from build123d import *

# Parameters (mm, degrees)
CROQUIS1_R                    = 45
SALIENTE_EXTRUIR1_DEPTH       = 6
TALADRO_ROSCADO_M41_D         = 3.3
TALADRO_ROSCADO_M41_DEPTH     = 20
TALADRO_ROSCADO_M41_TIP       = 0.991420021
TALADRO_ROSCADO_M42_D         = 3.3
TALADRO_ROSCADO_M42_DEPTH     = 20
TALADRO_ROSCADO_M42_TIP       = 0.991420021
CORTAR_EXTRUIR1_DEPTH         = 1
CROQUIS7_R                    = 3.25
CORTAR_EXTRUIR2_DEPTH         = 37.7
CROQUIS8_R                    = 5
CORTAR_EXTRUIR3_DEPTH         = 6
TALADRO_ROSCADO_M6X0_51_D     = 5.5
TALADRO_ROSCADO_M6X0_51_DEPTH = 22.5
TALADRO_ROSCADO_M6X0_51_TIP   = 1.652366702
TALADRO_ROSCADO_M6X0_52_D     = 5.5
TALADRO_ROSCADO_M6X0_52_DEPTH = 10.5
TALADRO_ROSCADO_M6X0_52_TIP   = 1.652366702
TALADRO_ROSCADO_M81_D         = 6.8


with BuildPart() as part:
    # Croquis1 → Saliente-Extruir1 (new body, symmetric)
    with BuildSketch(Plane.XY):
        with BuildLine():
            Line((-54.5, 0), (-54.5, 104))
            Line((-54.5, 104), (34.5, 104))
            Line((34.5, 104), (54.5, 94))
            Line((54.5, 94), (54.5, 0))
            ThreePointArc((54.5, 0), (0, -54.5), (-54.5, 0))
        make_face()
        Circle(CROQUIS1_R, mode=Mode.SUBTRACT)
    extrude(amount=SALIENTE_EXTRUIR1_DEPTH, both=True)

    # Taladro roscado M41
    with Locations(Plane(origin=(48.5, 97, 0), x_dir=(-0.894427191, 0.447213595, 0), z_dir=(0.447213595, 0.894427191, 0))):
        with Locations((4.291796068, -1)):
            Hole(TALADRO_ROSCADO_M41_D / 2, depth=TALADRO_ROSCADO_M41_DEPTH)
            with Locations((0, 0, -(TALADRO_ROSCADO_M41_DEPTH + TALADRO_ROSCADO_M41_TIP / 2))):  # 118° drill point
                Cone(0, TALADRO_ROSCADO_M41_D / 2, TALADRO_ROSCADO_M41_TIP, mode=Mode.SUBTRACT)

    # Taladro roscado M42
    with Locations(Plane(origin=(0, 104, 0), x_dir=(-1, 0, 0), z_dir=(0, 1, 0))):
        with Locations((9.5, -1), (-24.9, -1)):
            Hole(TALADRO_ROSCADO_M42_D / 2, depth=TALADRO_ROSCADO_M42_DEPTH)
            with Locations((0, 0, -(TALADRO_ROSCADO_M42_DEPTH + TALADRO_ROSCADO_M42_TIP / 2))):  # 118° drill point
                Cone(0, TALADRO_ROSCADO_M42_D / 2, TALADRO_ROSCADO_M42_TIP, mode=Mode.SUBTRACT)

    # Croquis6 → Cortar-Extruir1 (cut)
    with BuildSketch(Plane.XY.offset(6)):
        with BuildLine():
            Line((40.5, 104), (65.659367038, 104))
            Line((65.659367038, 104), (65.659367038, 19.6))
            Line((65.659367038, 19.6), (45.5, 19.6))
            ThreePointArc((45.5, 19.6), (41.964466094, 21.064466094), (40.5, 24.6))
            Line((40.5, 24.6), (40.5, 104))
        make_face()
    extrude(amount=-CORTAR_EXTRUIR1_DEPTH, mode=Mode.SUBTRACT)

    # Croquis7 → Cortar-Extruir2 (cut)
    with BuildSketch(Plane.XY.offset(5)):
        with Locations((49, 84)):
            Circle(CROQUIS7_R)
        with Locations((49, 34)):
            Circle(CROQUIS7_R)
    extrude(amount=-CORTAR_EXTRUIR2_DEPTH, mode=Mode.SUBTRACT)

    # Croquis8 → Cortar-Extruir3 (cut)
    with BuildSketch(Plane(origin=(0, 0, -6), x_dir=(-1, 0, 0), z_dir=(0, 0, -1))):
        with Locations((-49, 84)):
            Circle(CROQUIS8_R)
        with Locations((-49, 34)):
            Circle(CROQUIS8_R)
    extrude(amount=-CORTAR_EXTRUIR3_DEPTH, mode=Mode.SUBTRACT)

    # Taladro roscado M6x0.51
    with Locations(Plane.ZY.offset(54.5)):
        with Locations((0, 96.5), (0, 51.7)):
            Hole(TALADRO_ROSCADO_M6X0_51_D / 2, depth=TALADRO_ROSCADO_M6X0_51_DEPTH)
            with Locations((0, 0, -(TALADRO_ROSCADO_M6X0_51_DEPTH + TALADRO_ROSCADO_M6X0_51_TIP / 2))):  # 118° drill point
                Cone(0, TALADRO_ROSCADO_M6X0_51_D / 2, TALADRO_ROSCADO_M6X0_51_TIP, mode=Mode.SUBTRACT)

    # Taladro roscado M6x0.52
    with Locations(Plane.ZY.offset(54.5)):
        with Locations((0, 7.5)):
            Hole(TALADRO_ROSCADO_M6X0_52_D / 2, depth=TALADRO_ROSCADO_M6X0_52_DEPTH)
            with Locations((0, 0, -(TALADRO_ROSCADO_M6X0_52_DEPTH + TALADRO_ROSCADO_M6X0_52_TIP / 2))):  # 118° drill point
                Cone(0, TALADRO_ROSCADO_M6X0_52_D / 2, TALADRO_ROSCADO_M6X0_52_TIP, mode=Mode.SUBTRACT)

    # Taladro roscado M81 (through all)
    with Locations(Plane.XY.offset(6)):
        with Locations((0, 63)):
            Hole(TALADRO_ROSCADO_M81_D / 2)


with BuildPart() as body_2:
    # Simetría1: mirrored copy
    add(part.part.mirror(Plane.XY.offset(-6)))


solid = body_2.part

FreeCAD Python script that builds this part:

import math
import FreeCAD as App
import Part
import Sketcher
Q = App.Units.Quantity

doc = App.newDocument("Part")
body = doc.addObject("PartDesign::Body", "Body")

sketch1 = body.newObject("Sketcher::SketchObject", "Sketch")
sketch1.AttachmentSupport = (doc.getObject("XY_Plane"), [""])
sketch1.MapMode = "FlatFace"
sketch1.addGeometry([
    Part.LineSegment(App.Vector(-54, 104, 0), App.Vector(-54, 0, 0)),
    Part.ArcOfCircle(Part.Circle(App.Vector(0, 0, 0), App.Vector(0, 0, 1), 54), math.radians(180), math.radians(360)),
    Part.LineSegment(App.Vector(54, 0, 0), App.Vector(54, 94, 0)),
    Part.LineSegment(App.Vector(54, 94, 0), App.Vector(34, 104, 0)),
    Part.LineSegment(App.Vector(34, 104, 0), App.Vector(-54, 104, 0)),
    Part.Circle(App.Vector(0, 0, 0), App.Vector(0, 0, 1), 45),
], False)
sketch1.addConstraint([
    Sketcher.Constraint("Tangent", 0, 2, 1, 1),
    Sketcher.Constraint("Tangent", 1, 2, 2, 1),
    Sketcher.Constraint("Coincident", 2, 2, 3, 1),
    Sketcher.Constraint("Coincident", 3, 2, 4, 1),
    Sketcher.Constraint("Coincident", 4, 2, 0, 1),
    Sketcher.Constraint("Vertical", 0),
    Sketcher.Constraint("Vertical", 2),
    Sketcher.Constraint("Horizontal", 4),
    Sketcher.Constraint("Coincident", 1, 3, -1, 1),
    Sketcher.Constraint("Coincident", 5, 3, -1, 1),
    Sketcher.Constraint("Diameter", 5, Q("90 mm")),
    Sketcher.Constraint("Radius", 1, Q("54.5 mm")),
    Sketcher.Constraint("DistanceX", 4, 2, 4, 1, Q("89 mm")),
    Sketcher.Constraint("DistanceY", 0, 2, 0, 1, Q("104 mm")),
    Sketcher.Constraint("DistanceY", 2, 1, 2, 2, Q("94 mm")),
])
pad1 = body.newObject("PartDesign::Pad", "Pad")
pad1.Profile = sketch1
pad1.Length = 12
pad1.Midplane = True

sketch2 = body.newObject("Sketcher::SketchObject", "Sketch001")
sketch2.Placement = App.Placement(App.Vector(48.5, 97, 0), App.Rotation(App.Vector(-0.894427191, 0.447213595, 0), App.Vector(0, 0, 1), App.Vector(0.447213595, 0.894427191, 0), "ZXY"))
sketch2.addGeometry(Part.Circle(App.Vector(4.3, -1, 0), App.Vector(0, 0, 1), 1.6), False)
sketch2.addConstraint([
    Sketcher.Constraint("Diameter", 0, Q("3.3 mm")),
    Sketcher.Constraint("DistanceY", 0, 3, -1, 1, Q("1 mm")),
    Sketcher.Constraint("DistanceX", -1, 1, 0, 3, Q("4.291796 mm")),
])
doc.recompute()
hole = body.newObject("PartDesign::Hole", "Hole")
hole.Profile = sketch2
hole.ThreadType = "None"
hole.Diameter = 3.3
hole.DepthType = "Dimension"
hole.Depth = 20
hole.DrillPoint = "Angled"
hole.DrillPointAngle = 118

sketch3 = body.newObject("Sketcher::SketchObject", "Sketch002")
sketch3.AttachmentSupport = (doc.getObject("XZ_Plane"), [""])
sketch3.MapMode = "FlatFace"
sketch3.AttachmentOffset = App.Placement(App.Vector(0, 0, -104), App.Rotation())
sketch3.addGeometry([
    Part.Circle(App.Vector(-9.5, -1, 0), App.Vector(0, 0, 1), 1.6),
    Part.Circle(App.Vector(24.9, -1, 0), App.Vector(0, 0, 1), 1.6),
], False)
sketch3.addConstraint([
    Sketcher.Constraint("Equal", 0, 1),
    Sketcher.Constraint("Horizontal", 0, 3, 1, 3),
    Sketcher.Constraint("Diameter", 0, Q("3.3 mm")),
    Sketcher.Constraint("DistanceY", 0, 3, -1, 1, Q("1 mm")),
    Sketcher.Constraint("DistanceX", 0, 3, -1, 1, Q("9.5 mm")),
    Sketcher.Constraint("DistanceX", -1, 1, 1, 3, Q("24.9 mm")),
])
doc.recompute()
hole2 = body.newObject("PartDesign::Hole", "Hole001")
hole2.Profile = sketch3
hole2.ThreadType = "None"
hole2.Diameter = 3.3
hole2.DepthType = "Dimension"
hole2.Depth = 20
hole2.DrillPoint = "Angled"
hole2.DrillPointAngle = 118
hole2.Reversed = True

sketch4 = body.newObject("Sketcher::SketchObject", "Sketch003")
sketch4.AttachmentSupport = (doc.getObject("XY_Plane"), [""])
sketch4.MapMode = "FlatFace"
sketch4.AttachmentOffset = App.Placement(App.Vector(0, 0, 6), App.Rotation())
sketch4.addGeometry([
    Part.LineSegment(App.Vector(66, 104, 0), App.Vector(40, 104, 0)),
    Part.LineSegment(App.Vector(40, 104, 0), App.Vector(40, 25, 0)),
    Part.ArcOfCircle(Part.Circle(App.Vector(46, 25, 0), App.Vector(0, 0, 1), 5), math.radians(180), math.radians(270)),
    Part.LineSegment(App.Vector(46, 20, 0), App.Vector(66, 20, 0)),
    Part.LineSegment(App.Vector(66, 20, 0), App.Vector(66, 104, 0)),
], False)
sketch4.addConstraint([
    Sketcher.Constraint("Coincident", 0, 2, 1, 1),
    Sketcher.Constraint("Tangent", 1, 2, 2, 1),
    Sketcher.Constraint("Tangent", 2, 2, 3, 1),
    Sketcher.Constraint("Coincident", 3, 2, 4, 1),
    Sketcher.Constraint("Coincident", 4, 2, 0, 1),
    Sketcher.Constraint("Horizontal", 0),
    Sketcher.Constraint("Vertical", 1),
    Sketcher.Constraint("Horizontal", 3),
    Sketcher.Constraint("Vertical", 4),
    Sketcher.Constraint("Radius", 2, Q("5 mm")),
    Sketcher.Constraint("DistanceY", 1, 2, 1, 1, Q("79.4 mm")),
    Sketcher.Constraint("DistanceY", -1, 1, 0, 2, Q("104 mm")),
    Sketcher.Constraint("DistanceX", -1, 1, 2, 3, Q("45.5 mm")),
    Sketcher.Constraint("DistanceX", 0, 2, 0, 1, Q("25.159367 mm")),
])
pocket1 = body.newObject("PartDesign::Pocket", "Pocket")
pocket1.Profile = sketch4
pocket1.Length = 1

sketch5 = body.newObject("Sketcher::SketchObject", "Sketch004")
sketch5.AttachmentSupport = (doc.getObject("XY_Plane"), [""])
sketch5.MapMode = "FlatFace"
sketch5.AttachmentOffset = App.Placement(App.Vector(0, 0, 5), App.Rotation())
sketch5.addGeometry([
    Part.Circle(App.Vector(49, 84, 0), App.Vector(0, 0, 1), 3.2),
    Part.Circle(App.Vector(49, 34, 0), App.Vector(0, 0, 1), 3.2),
], False)
sketch5.addConstraint([
    Sketcher.Constraint("Equal", 0, 1),
    Sketcher.Constraint("Vertical", 0, 3, 1, 3),
    Sketcher.Constraint("Diameter", 0, Q("6.5 mm")),
    Sketcher.Constraint("DistanceX", -1, 1, 0, 3, Q("49 mm")),
    Sketcher.Constraint("DistanceY", -1, 1, 0, 3, Q("84 mm")),
    Sketcher.Constraint("DistanceY", -1, 1, 1, 3, Q("34 mm")),
])
pocket2 = body.newObject("PartDesign::Pocket", "Pocket001")
pocket2.Profile = sketch5
pocket2.Length = 37.7

sketch6 = body.newObject("Sketcher::SketchObject", "Sketch005")
sketch6.AttachmentSupport = (doc.getObject("XY_Plane"), [""])
sketch6.MapMode = "FlatFace"
sketch6.AttachmentOffset = App.Placement(App.Vector(0, 0, -6), App.Rotation())
sketch6.addGeometry([
    Part.Circle(App.Vector(49, 84, 0), App.Vector(0, 0, 1), 5),
    Part.Circle(App.Vector(49, 34, 0), App.Vector(0, 0, 1), 5),
], False)
sketch6.addConstraint([
    Sketcher.Constraint("Equal", 0, 1),
    Sketcher.Constraint("Vertical", 0, 3, 1, 3),
    Sketcher.Constraint("Diameter", 0, Q("10 mm")),
    Sketcher.Constraint("DistanceX", -1, 1, 0, 3, Q("49 mm")),
    Sketcher.Constraint("DistanceY", -1, 1, 0, 3, Q("84 mm")),
    Sketcher.Constraint("DistanceY", -1, 1, 1, 3, Q("34 mm")),
])
pocket3 = body.newObject("PartDesign::Pocket", "Pocket002")
pocket3.Profile = sketch6
pocket3.Length = 6
pocket3.Reversed = True

sketch7 = body.newObject("Sketcher::SketchObject", "Sketch006")
sketch7.AttachmentSupport = (doc.getObject("YZ_Plane"), [""])
sketch7.MapMode = "FlatFace"
sketch7.AttachmentOffset = App.Placement(App.Vector(0, 0, -54.5), App.Rotation())
sketch7.addGeometry([
    Part.Circle(App.Vector(96.5, 0, 0), App.Vector(0, 0, 1), 2.8),
    Part.Circle(App.Vector(51.7, 0, 0), App.Vector(0, 0, 1), 2.8),
], False)
sketch7.addConstraint([
    Sketcher.Constraint("Equal", 0, 1),
    Sketcher.Constraint("PointOnObject", 0, 3, -1),
    Sketcher.Constraint("PointOnObject", 1, 3, -1),
    Sketcher.Constraint("Diameter", 0, Q("5.5 mm")),
    Sketcher.Constraint("DistanceX", -1, 1, 0, 3, Q("96.5 mm")),
    Sketcher.Constraint("DistanceX", -1, 1, 1, 3, Q("51.7 mm")),
])
doc.recompute()
hole3 = body.newObject("PartDesign::Hole", "Hole002")
hole3.Profile = sketch7
hole3.ThreadType = "None"
hole3.Diameter = 5.5
hole3.DepthType = "Dimension"
hole3.Depth = 22.5
hole3.DrillPoint = "Angled"
hole3.DrillPointAngle = 118
hole3.Reversed = True

sketch8 = body.newObject("Sketcher::SketchObject", "Sketch007")
sketch8.AttachmentSupport = (doc.getObject("YZ_Plane"), [""])
sketch8.MapMode = "FlatFace"
sketch8.AttachmentOffset = App.Placement(App.Vector(0, 0, -54.5), App.Rotation())
sketch8.addGeometry(Part.Circle(App.Vector(7.5, 0, 0), App.Vector(0, 0, 1), 2.8), False)
sketch8.addConstraint([
    Sketcher.Constraint("PointOnObject", 0, 3, -1),
    Sketcher.Constraint("Diameter", 0, Q("5.5 mm")),
    Sketcher.Constraint("DistanceX", -1, 1, 0, 3, Q("7.5 mm")),
])
doc.recompute()
hole4 = body.newObject("PartDesign::Hole", "Hole003")
hole4.Profile = sketch8
hole4.ThreadType = "None"
hole4.Diameter = 5.5
hole4.DepthType = "Dimension"
hole4.Depth = 10.5
hole4.DrillPoint = "Angled"
hole4.DrillPointAngle = 118
hole4.Reversed = True

sketch9 = body.newObject("Sketcher::SketchObject", "Sketch008")
sketch9.AttachmentSupport = (doc.getObject("XY_Plane"), [""])
sketch9.MapMode = "FlatFace"
sketch9.AttachmentOffset = App.Placement(App.Vector(0, 0, 6), App.Rotation())
sketch9.addGeometry(Part.Circle(App.Vector(0, 63, 0), App.Vector(0, 0, 1), 3.4), False)
sketch9.addConstraint([
    Sketcher.Constraint("PointOnObject", 0, 3, -2),
    Sketcher.Constraint("Diameter", 0, Q("6.8 mm")),
    Sketcher.Constraint("DistanceY", -1, 1, 0, 3, Q("63 mm")),
])
doc.recompute()
hole5 = body.newObject("PartDesign::Hole", "Hole004")
hole5.Profile = sketch9
hole5.ThreadType = "None"
hole5.Diameter = 6.8
hole5.DepthType = "ThroughAll"
body2 = doc.addObject("PartDesign::Body", "Body001")
doc.recompute()

mirroring = doc.addObject("Part::Mirroring", "Mirroring")
mirroring.Source = body
mirroring.Base = App.Vector(0, 0, -6)
mirroring.Normal = App.Vector(0, 0, 1)
body2.BaseFeature = mirroring
doc.recompute()
body.Visibility = False
mirroring.Visibility = False

doc.recompute()
